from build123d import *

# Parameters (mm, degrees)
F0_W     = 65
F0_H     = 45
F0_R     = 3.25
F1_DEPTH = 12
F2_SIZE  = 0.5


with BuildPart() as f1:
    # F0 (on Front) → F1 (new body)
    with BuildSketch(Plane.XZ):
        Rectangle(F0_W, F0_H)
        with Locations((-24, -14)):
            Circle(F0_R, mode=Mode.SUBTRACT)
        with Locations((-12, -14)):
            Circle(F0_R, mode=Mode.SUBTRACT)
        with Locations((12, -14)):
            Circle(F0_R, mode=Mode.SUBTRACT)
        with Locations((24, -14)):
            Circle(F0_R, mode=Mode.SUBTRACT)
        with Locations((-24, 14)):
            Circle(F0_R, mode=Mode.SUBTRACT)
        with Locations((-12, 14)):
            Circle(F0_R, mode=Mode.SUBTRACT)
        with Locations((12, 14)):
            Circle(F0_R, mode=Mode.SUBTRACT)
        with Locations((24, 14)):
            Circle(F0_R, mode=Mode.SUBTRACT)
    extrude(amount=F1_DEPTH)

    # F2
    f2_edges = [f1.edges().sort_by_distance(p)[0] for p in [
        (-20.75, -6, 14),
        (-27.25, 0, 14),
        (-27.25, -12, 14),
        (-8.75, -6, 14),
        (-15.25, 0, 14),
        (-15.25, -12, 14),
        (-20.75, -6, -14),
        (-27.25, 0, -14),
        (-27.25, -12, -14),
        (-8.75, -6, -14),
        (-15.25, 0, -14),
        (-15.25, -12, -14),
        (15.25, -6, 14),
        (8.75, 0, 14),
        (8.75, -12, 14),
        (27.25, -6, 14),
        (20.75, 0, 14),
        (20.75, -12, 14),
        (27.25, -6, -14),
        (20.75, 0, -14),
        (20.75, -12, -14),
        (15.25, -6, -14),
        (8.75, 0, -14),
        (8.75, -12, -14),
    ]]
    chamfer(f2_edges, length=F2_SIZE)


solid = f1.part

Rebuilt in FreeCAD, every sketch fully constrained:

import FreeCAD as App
import Part
import Sketcher
from FreeCAD import Vector
Q = App.Units.Quantity


def edges_at(feature, points):
    """Names of the edges that pass closest to the given points."""
    edges = feature.Shape.Edges
    near = lambda p: min(range(len(edges)), key=lambda i: edges[i].distToShape(Part.Vertex(*p))[0])
    return sorted({f"Edge{near(p) + 1}" for p in points})


def add_polygon(sketch, points):
    """Adds a closed chain of lines whose ends are joined by coincident constraints."""
    first, n = sketch.GeometryCount, len(points)
    for a, b in zip(points, points[1:] + points[:1]):
        sketch.addGeometry(Part.LineSegment(App.Vector(*a, 0), App.Vector(*b, 0)), False)
    for i in range(n):
        sketch.addConstraint(Sketcher.Constraint("Coincident", first + i, 2, first + (i + 1) % n, 1))

doc = App.newDocument("Part")
body = doc.addObject("PartDesign::Body", "Body")

# Sketch on XZ plane
sketch1 = body.newObject("Sketcher::SketchObject", "Sketch")
sketch1.AttachmentSupport = (doc.getObject("XZ_Plane"), [""])
sketch1.MapMode = "FlatFace"
add_polygon(sketch1, [(-32.5, 22.5), (-32.5, -22.5), (32.5, -22.5), (32.5, 22.5)])  # lines 0-3
sketch1.addGeometry(Part.Circle(Vector(-24, -14, 0), Vector(0, 0, 1), 3.25), False)  # 4
sketch1.addGeometry(Part.Circle(Vector(-12, -14, 0), Vector(0, 0, 1), 3.25), False)  # 5
sketch1.addGeometry(Part.Circle(Vector(12, -14, 0), Vector(0, 0, 1), 3.25), False)  # 6
sketch1.addGeometry(Part.Circle(Vector(24, -14, 0), Vector(0, 0, 1), 3.25), False)  # 7
sketch1.addGeometry(Part.Circle(Vector(-24, 14, 0), Vector(0, 0, 1), 3.25), False)  # 8
sketch1.addGeometry(Part.Circle(Vector(-12, 14, 0), Vector(0, 0, 1), 3.25), False)  # 9
sketch1.addGeometry(Part.Circle(Vector(12, 14, 0), Vector(0, 0, 1), 3.25), False)  # 10
sketch1.addGeometry(Part.Circle(Vector(24, 14, 0), Vector(0, 0, 1), 3.25), False)  # 11
sketch1.addConstraint(Sketcher.Constraint("Vertical", 0))
sketch1.addConstraint(Sketcher.Constraint("Horizontal", 1))
sketch1.addConstraint(Sketcher.Constraint("Vertical", 2))
sketch1.addConstraint(Sketcher.Constraint("Horizontal", 3))
sketch1.addConstraint(Sketcher.Constraint("Equal", 4, 5))
sketch1.addConstraint(Sketcher.Constraint("Equal", 5, 6))
sketch1.addConstraint(Sketcher.Constraint("Equal", 6, 7))
sketch1.addConstraint(Sketcher.Constraint("Equal", 7, 8))
sketch1.addConstraint(Sketcher.Constraint("Equal", 8, 9))
sketch1.addConstraint(Sketcher.Constraint("Equal", 9, 10))
sketch1.addConstraint(Sketcher.Constraint("Equal", 10, 11))
sketch1.addConstraint(Sketcher.Constraint("Symmetric", 7, 3, 8, 3, -1, 1))
sketch1.addConstraint(Sketcher.Constraint("Symmetric", 6, 3, 9, 3, -1, 1))
sketch1.addConstraint(Sketcher.Constraint("Symmetric", 5, 3, 10, 3, -1, 1))
sketch1.addConstraint(Sketcher.Constraint("Symmetric", 4, 3, 11, 3, -1, 1))
sketch1.addConstraint(Sketcher.Constraint("Symmetric", 0, 2, 2, 2, -1, 1))
sketch1.addConstraint(Sketcher.Constraint("Symmetric", 5, 3, 6, 3, -2))
sketch1.addConstraint(Sketcher.Constraint("Symmetric", 4, 3, 7, 3, -2))
sketch1.addConstraint(Sketcher.Constraint("Horizontal", 4, 3, 5, 3))
sketch1.addConstraint(Sketcher.Constraint("Diameter", 4, Q("6.5 mm")))
sketch1.addConstraint(Sketcher.Constraint("DistanceX", 1, 1, 1, 2, Q("65 mm")))
sketch1.addConstraint(Sketcher.Constraint("DistanceY", 0, 2, 0, 1, Q("45 mm")))
sketch1.addConstraint(Sketcher.Constraint("DistanceX", 4, 3, -1, 1, Q("24 mm")))
sketch1.addConstraint(Sketcher.Constraint("DistanceY", 4, 3, -1, 1, Q("14 mm")))
sketch1.addConstraint(Sketcher.Constraint("DistanceX", 5, 3, -1, 1, Q("12 mm")))
pad1 = body.newObject("PartDesign::Pad", "Pad")
pad1.Profile = sketch1
pad1.Length = 12
doc.recompute()

chamfer = body.newObject("PartDesign::Chamfer", "Chamfer")
chamfer.Base = (pad1, edges_at(pad1, [
    (-20.75, -6, 14),
    (-27.25, 0, 14),
    (-27.25, -12, 14),
    (-8.75, -6, 14),
    (-15.25, 0, 14),
    (-15.25, -12, 14),
    (-20.75, -6, -14),
    (-27.25, 0, -14),
    (-27.25, -12, -14),
    (-8.75, -6, -14),
    (-15.25, 0, -14),
    (-15.25, -12, -14),
    (15.25, -6, 14),
    (8.75, 0, 14),
    (8.75, -12, 14),
    (27.25, -6, 14),
    (20.75, 0, 14),
    (20.75, -12, 14),
    (27.25, -6, -14),
    (20.75, 0, -14),
    (20.75, -12, -14),
    (15.25, -6, -14),
    (8.75, 0, -14),
    (8.75, -12, -14),
]))
chamfer.Size = 0.5

doc.recompute()
